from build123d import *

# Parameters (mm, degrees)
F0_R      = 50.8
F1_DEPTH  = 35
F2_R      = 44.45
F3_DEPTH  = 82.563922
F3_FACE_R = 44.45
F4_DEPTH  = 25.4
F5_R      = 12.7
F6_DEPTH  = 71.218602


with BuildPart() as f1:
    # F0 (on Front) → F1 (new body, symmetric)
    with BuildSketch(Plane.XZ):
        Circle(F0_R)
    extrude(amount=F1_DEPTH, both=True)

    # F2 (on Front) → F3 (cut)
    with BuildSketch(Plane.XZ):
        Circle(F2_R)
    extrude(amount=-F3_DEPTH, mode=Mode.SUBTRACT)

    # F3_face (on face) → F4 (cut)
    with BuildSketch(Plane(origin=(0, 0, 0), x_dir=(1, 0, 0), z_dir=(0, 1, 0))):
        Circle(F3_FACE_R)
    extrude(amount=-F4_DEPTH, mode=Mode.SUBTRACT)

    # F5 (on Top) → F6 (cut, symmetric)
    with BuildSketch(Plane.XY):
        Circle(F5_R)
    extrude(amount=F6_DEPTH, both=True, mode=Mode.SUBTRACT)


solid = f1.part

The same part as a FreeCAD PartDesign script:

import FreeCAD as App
import Part
import Sketcher
Q = App.Units.Quantity

doc = App.newDocument("Part")
params = doc.addObject("Spreadsheet::Sheet", "Params")
for row, (alias, value) in enumerate([
    ("sketch1_diameter", "4 in"),
    ("pad1_length", "70 mm"),
    ("sketch2_diameter", "3.5 in"),
    ("pocket1_length", "82.563922 mm"),
    ("sketch3_diameter", "3.5 in"),
    ("pocket2_length", "1 in"),
    ("sketch4_diameter", "1 in"),
    ("pocket3_length", "142.437204 mm"),
], start=1):
    params.set(f"A{row}", alias)
    params.set(f"B{row}", "=" + value)
    params.setAlias(f"B{row}", alias)

body = doc.addObject("PartDesign::Body", "Body")

sketch1 = doc.addObject("Sketcher::SketchObject", "Sketch")
body.addObject(sketch1)
sketch1.AttachmentSupport = (doc.XZ_Plane, [""])
sketch1.MapMode = "FlatFace"
sketch1.addGeometry(Part.Circle(App.Vector(0, 0, 0), App.Vector(0, 0, 1), 51), False)
sketch1.addConstraint([
    Sketcher.Constraint("Coincident", 0, 3, -1, 1),
    Sketcher.Constraint("Diameter", 0, Q("4 in")),
])
sketch1.setExpression("Constraints[1]", "Params.sketch1_diameter")
pad1 = doc.addObject("PartDesign::Pad", "Pad")
body.addObject(pad1)
pad1.Profile = sketch1
pad1.setExpression("Length", "Params.pad1_length")
pad1.Midplane = True

sketch2 = doc.addObject("Sketcher::SketchObject", "Sketch001")
body.addObject(sketch2)
sketch2.AttachmentSupport = (doc.XZ_Plane, [""])
sketch2.MapMode = "FlatFace"
sketch2.addGeometry(Part.Circle(App.Vector(0, 0, 0), App.Vector(0, 0, 1), 44), False)
sketch2.addConstraint([
    Sketcher.Constraint("Coincident", 0, 3, -1, 1),
    Sketcher.Constraint("Diameter", 0, Q("3.5 in")),
])
sketch2.setExpression("Constraints[1]", "Params.sketch2_diameter")
pocket1 = doc.addObject("PartDesign::Pocket", "Pocket")
body.addObject(pocket1)
pocket1.Profile = sketch2
pocket1.setExpression("Length", "Params.pocket1_length")

sketch3 = doc.addObject("Sketcher::SketchObject", "Sketch002")
body.addObject(sketch3)
sketch3.AttachmentSupport = (doc.XZ_Plane, [""])
sketch3.MapMode = "FlatFace"
sketch3.addGeometry(Part.Circle(App.Vector(0, 0, 0), App.Vector(0, 0, 1), 44), False)
sketch3.addConstraint([
    Sketcher.Constraint("Coincident", 0, 3, -1, 1),
    Sketcher.Constraint("Diameter", 0, Q("3.5 in")),
])
sketch3.setExpression("Constraints[1]", "Params.sketch3_diameter")
pocket2 = doc.addObject("PartDesign::Pocket", "Pocket001")
body.addObject(pocket2)
pocket2.Profile = sketch3
pocket2.setExpression("Length", "Params.pocket2_length")
pocket2.Reversed = True

sketch4 = doc.addObject("Sketcher::SketchObject", "Sketch003")
body.addObject(sketch4)
sketch4.AttachmentSupport = (doc.XY_Plane, [""])
sketch4.MapMode = "FlatFace"
sketch4.addGeometry(Part.Circle(App.Vector(0, 0, 0), App.Vector(0, 0, 1), 13), False)
sketch4.addConstraint([
    Sketcher.Constraint("Coincident", 0, 3, -1, 1),
    Sketcher.Constraint("Diameter", 0, Q("1 in")),
])
sketch4.setExpression("Constraints[1]", "Params.sketch4_diameter")
pocket3 = doc.addObject("PartDesign::Pocket", "Pocket002")
body.addObject(pocket3)
pocket3.Profile = sketch4
pocket3.setExpression("Length", "Params.pocket3_length")
pocket3.Midplane = True

doc.recompute()
